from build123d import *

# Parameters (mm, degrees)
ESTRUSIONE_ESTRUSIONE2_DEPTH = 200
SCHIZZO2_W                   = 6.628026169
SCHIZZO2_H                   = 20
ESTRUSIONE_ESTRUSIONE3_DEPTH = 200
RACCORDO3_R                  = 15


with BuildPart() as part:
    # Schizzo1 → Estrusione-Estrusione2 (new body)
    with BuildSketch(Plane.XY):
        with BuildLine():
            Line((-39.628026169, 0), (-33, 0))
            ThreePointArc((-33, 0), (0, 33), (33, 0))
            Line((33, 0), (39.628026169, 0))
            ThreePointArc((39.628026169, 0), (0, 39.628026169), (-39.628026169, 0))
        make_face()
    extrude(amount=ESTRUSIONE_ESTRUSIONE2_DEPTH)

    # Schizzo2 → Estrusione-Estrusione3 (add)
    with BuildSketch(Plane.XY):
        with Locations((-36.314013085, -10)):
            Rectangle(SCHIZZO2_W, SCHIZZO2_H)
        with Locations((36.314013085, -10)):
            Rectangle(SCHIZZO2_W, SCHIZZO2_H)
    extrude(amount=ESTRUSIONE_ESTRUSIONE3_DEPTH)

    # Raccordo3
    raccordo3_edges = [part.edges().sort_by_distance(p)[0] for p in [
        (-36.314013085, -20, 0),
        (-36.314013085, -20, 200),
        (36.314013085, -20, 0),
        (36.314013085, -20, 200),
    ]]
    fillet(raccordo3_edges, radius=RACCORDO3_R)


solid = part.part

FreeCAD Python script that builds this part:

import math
import FreeCAD as App
import Part
import Sketcher
from FreeCAD import Vector
Q = App.Units.Quantity


def edges_at(feature, points):
    """Names of the edges that pass closest to the given points."""
    edges = feature.Shape.Edges
    near = lambda p: min(range(len(edges)), key=lambda i: edges[i].distToShape(Part.Vertex(*p))[0])
    return sorted({f"Edge{near(p) + 1}" for p in points})

doc = App.newDocument("Part")
body = doc.addObject("PartDesign::Body", "Body")

sketch1 = body.newObject("Sketcher::SketchObject", "Sketch")
sketch1.AttachmentSupport = (doc.getObject("XY_Plane"), [""])
sketch1.MapMode = "FlatFace"
sketch1.addGeometry([
    Part.LineSegment(Vector(-39.628026, 0, 0), Vector(-33, 0, 0)),
    Part.ArcOfCircle(Part.Circle(Vector(0, 0, 0), Vector(0, 0, 1), 33), math.radians(0), math.radians(180)),
    Part.LineSegment(Vector(33, 0, 0), Vector(39.628026, 0, 0)),
    Part.ArcOfCircle(Part.Circle(Vector(0, 0, 0), Vector(0, 0, 1), 39.628026), math.radians(0), math.radians(180)),
], False)
sketch1.addConstraint([
    Sketcher.Constraint("Coincident", 0, 2, 1, 2),
    Sketcher.Constraint("Coincident", 1, 1, 2, 1),
    Sketcher.Constraint("Coincident", 2, 2, 3, 1),
    Sketcher.Constraint("Coincident", 3, 2, 0, 1),
    Sketcher.Constraint("Horizontal", 0),
    Sketcher.Constraint("Horizontal", 2),
    Sketcher.Constraint("Coincident", 1, 3, -1, 1),
    Sketcher.Constraint("Coincident", 3, 3, -1, 1),
    Sketcher.Constraint("PointOnObject", 0, 2, -1),
    Sketcher.Constraint("PointOnObject", 1, 1, -1),
    Sketcher.Constraint("Radius", 1, Q("33 mm")),
    Sketcher.Constraint("Radius", 3, Q("39.628026 mm")),
])
pad1 = body.newObject("PartDesign::Pad", "Pad")
pad1.Profile = sketch1
pad1.Length = 200

sketch2 = body.newObject("Sketcher::SketchObject", "Sketch001")
sketch2.AttachmentSupport = (doc.getObject("XY_Plane"), [""])
sketch2.MapMode = "FlatFace"
sketch2.addGeometry([
    Part.LineSegment(Vector(-39.628026, 0, 0), Vector(-39.628026, -20, 0)),
    Part.LineSegment(Vector(-39.628026, -20, 0), Vector(-33, -20, 0)),
    Part.LineSegment(Vector(-33, -20, 0), Vector(-33, 0, 0)),
    Part.LineSegment(Vector(-33, 0, 0), Vector(-39.628026, 0, 0)),
    Part.LineSegment(Vector(33, 0, 0), Vector(33, -20, 0)),
    Part.LineSegment(Vector(33, -20, 0), Vector(39.628026, -20, 0)),
    Part.LineSegment(Vector(39.628026, -20, 0), Vector(39.628026, 0, 0)),
    Part.LineSegment(Vector(39.628026, 0, 0), Vector(33, 0, 0)),
], False)
sketch2.addConstraint([
    Sketcher.Constraint("Coincident", 0, 2, 1, 1),
    Sketcher.Constraint("Coincident", 1, 2, 2, 1),
    Sketcher.Constraint("Coincident", 2, 2, 3, 1),
    Sketcher.Constraint("Coincident", 3, 2, 0, 1),
    Sketcher.Constraint("Coincident", 4, 2, 5, 1),
    Sketcher.Constraint("Coincident", 5, 2, 6, 1),
    Sketcher.Constraint("Coincident", 6, 2, 7, 1),
    Sketcher.Constraint("Coincident", 7, 2, 4, 1),
    Sketcher.Constraint("Vertical", 0),
    Sketcher.Constraint("Horizontal", 1),
    Sketcher.Constraint("Vertical", 2),
    Sketcher.Constraint("Horizontal", 3),
    Sketcher.Constraint("Vertical", 4),
    Sketcher.Constraint("Horizontal", 5),
    Sketcher.Constraint("Vertical", 6),
    Sketcher.Constraint("Horizontal", 7),
    Sketcher.Constraint("Symmetric", 3, 2, 6, 2, -1, 1),
    Sketcher.Constraint("Symmetric", 1, 2, 4, 2, -2),
    Sketcher.Constraint("PointOnObject", 2, 2, -1),
    Sketcher.Constraint("DistanceY", 0, 2, 0, 1, Q("20 mm")),
    Sketcher.Constraint("DistanceX", 1, 2, -1, 1, Q("33 mm")),
    Sketcher.Constraint("DistanceX", 1, 1, 1, 2, Q("6.628026 mm")),
])
pad2 = body.newObject("PartDesign::Pad", "Pad001")
pad2.Profile = sketch2
pad2.Length = 200
doc.recompute()

fillet = body.newObject("PartDesign::Fillet", "Fillet")
fillet.Base = (pad2, edges_at(pad2, [
    (-36.314, -20, 0),
    (-36.314, -20, 200),
    (36.314, -20, 0),
    (36.314, -20, 200),
]))
fillet.Radius = 15

doc.recompute()
